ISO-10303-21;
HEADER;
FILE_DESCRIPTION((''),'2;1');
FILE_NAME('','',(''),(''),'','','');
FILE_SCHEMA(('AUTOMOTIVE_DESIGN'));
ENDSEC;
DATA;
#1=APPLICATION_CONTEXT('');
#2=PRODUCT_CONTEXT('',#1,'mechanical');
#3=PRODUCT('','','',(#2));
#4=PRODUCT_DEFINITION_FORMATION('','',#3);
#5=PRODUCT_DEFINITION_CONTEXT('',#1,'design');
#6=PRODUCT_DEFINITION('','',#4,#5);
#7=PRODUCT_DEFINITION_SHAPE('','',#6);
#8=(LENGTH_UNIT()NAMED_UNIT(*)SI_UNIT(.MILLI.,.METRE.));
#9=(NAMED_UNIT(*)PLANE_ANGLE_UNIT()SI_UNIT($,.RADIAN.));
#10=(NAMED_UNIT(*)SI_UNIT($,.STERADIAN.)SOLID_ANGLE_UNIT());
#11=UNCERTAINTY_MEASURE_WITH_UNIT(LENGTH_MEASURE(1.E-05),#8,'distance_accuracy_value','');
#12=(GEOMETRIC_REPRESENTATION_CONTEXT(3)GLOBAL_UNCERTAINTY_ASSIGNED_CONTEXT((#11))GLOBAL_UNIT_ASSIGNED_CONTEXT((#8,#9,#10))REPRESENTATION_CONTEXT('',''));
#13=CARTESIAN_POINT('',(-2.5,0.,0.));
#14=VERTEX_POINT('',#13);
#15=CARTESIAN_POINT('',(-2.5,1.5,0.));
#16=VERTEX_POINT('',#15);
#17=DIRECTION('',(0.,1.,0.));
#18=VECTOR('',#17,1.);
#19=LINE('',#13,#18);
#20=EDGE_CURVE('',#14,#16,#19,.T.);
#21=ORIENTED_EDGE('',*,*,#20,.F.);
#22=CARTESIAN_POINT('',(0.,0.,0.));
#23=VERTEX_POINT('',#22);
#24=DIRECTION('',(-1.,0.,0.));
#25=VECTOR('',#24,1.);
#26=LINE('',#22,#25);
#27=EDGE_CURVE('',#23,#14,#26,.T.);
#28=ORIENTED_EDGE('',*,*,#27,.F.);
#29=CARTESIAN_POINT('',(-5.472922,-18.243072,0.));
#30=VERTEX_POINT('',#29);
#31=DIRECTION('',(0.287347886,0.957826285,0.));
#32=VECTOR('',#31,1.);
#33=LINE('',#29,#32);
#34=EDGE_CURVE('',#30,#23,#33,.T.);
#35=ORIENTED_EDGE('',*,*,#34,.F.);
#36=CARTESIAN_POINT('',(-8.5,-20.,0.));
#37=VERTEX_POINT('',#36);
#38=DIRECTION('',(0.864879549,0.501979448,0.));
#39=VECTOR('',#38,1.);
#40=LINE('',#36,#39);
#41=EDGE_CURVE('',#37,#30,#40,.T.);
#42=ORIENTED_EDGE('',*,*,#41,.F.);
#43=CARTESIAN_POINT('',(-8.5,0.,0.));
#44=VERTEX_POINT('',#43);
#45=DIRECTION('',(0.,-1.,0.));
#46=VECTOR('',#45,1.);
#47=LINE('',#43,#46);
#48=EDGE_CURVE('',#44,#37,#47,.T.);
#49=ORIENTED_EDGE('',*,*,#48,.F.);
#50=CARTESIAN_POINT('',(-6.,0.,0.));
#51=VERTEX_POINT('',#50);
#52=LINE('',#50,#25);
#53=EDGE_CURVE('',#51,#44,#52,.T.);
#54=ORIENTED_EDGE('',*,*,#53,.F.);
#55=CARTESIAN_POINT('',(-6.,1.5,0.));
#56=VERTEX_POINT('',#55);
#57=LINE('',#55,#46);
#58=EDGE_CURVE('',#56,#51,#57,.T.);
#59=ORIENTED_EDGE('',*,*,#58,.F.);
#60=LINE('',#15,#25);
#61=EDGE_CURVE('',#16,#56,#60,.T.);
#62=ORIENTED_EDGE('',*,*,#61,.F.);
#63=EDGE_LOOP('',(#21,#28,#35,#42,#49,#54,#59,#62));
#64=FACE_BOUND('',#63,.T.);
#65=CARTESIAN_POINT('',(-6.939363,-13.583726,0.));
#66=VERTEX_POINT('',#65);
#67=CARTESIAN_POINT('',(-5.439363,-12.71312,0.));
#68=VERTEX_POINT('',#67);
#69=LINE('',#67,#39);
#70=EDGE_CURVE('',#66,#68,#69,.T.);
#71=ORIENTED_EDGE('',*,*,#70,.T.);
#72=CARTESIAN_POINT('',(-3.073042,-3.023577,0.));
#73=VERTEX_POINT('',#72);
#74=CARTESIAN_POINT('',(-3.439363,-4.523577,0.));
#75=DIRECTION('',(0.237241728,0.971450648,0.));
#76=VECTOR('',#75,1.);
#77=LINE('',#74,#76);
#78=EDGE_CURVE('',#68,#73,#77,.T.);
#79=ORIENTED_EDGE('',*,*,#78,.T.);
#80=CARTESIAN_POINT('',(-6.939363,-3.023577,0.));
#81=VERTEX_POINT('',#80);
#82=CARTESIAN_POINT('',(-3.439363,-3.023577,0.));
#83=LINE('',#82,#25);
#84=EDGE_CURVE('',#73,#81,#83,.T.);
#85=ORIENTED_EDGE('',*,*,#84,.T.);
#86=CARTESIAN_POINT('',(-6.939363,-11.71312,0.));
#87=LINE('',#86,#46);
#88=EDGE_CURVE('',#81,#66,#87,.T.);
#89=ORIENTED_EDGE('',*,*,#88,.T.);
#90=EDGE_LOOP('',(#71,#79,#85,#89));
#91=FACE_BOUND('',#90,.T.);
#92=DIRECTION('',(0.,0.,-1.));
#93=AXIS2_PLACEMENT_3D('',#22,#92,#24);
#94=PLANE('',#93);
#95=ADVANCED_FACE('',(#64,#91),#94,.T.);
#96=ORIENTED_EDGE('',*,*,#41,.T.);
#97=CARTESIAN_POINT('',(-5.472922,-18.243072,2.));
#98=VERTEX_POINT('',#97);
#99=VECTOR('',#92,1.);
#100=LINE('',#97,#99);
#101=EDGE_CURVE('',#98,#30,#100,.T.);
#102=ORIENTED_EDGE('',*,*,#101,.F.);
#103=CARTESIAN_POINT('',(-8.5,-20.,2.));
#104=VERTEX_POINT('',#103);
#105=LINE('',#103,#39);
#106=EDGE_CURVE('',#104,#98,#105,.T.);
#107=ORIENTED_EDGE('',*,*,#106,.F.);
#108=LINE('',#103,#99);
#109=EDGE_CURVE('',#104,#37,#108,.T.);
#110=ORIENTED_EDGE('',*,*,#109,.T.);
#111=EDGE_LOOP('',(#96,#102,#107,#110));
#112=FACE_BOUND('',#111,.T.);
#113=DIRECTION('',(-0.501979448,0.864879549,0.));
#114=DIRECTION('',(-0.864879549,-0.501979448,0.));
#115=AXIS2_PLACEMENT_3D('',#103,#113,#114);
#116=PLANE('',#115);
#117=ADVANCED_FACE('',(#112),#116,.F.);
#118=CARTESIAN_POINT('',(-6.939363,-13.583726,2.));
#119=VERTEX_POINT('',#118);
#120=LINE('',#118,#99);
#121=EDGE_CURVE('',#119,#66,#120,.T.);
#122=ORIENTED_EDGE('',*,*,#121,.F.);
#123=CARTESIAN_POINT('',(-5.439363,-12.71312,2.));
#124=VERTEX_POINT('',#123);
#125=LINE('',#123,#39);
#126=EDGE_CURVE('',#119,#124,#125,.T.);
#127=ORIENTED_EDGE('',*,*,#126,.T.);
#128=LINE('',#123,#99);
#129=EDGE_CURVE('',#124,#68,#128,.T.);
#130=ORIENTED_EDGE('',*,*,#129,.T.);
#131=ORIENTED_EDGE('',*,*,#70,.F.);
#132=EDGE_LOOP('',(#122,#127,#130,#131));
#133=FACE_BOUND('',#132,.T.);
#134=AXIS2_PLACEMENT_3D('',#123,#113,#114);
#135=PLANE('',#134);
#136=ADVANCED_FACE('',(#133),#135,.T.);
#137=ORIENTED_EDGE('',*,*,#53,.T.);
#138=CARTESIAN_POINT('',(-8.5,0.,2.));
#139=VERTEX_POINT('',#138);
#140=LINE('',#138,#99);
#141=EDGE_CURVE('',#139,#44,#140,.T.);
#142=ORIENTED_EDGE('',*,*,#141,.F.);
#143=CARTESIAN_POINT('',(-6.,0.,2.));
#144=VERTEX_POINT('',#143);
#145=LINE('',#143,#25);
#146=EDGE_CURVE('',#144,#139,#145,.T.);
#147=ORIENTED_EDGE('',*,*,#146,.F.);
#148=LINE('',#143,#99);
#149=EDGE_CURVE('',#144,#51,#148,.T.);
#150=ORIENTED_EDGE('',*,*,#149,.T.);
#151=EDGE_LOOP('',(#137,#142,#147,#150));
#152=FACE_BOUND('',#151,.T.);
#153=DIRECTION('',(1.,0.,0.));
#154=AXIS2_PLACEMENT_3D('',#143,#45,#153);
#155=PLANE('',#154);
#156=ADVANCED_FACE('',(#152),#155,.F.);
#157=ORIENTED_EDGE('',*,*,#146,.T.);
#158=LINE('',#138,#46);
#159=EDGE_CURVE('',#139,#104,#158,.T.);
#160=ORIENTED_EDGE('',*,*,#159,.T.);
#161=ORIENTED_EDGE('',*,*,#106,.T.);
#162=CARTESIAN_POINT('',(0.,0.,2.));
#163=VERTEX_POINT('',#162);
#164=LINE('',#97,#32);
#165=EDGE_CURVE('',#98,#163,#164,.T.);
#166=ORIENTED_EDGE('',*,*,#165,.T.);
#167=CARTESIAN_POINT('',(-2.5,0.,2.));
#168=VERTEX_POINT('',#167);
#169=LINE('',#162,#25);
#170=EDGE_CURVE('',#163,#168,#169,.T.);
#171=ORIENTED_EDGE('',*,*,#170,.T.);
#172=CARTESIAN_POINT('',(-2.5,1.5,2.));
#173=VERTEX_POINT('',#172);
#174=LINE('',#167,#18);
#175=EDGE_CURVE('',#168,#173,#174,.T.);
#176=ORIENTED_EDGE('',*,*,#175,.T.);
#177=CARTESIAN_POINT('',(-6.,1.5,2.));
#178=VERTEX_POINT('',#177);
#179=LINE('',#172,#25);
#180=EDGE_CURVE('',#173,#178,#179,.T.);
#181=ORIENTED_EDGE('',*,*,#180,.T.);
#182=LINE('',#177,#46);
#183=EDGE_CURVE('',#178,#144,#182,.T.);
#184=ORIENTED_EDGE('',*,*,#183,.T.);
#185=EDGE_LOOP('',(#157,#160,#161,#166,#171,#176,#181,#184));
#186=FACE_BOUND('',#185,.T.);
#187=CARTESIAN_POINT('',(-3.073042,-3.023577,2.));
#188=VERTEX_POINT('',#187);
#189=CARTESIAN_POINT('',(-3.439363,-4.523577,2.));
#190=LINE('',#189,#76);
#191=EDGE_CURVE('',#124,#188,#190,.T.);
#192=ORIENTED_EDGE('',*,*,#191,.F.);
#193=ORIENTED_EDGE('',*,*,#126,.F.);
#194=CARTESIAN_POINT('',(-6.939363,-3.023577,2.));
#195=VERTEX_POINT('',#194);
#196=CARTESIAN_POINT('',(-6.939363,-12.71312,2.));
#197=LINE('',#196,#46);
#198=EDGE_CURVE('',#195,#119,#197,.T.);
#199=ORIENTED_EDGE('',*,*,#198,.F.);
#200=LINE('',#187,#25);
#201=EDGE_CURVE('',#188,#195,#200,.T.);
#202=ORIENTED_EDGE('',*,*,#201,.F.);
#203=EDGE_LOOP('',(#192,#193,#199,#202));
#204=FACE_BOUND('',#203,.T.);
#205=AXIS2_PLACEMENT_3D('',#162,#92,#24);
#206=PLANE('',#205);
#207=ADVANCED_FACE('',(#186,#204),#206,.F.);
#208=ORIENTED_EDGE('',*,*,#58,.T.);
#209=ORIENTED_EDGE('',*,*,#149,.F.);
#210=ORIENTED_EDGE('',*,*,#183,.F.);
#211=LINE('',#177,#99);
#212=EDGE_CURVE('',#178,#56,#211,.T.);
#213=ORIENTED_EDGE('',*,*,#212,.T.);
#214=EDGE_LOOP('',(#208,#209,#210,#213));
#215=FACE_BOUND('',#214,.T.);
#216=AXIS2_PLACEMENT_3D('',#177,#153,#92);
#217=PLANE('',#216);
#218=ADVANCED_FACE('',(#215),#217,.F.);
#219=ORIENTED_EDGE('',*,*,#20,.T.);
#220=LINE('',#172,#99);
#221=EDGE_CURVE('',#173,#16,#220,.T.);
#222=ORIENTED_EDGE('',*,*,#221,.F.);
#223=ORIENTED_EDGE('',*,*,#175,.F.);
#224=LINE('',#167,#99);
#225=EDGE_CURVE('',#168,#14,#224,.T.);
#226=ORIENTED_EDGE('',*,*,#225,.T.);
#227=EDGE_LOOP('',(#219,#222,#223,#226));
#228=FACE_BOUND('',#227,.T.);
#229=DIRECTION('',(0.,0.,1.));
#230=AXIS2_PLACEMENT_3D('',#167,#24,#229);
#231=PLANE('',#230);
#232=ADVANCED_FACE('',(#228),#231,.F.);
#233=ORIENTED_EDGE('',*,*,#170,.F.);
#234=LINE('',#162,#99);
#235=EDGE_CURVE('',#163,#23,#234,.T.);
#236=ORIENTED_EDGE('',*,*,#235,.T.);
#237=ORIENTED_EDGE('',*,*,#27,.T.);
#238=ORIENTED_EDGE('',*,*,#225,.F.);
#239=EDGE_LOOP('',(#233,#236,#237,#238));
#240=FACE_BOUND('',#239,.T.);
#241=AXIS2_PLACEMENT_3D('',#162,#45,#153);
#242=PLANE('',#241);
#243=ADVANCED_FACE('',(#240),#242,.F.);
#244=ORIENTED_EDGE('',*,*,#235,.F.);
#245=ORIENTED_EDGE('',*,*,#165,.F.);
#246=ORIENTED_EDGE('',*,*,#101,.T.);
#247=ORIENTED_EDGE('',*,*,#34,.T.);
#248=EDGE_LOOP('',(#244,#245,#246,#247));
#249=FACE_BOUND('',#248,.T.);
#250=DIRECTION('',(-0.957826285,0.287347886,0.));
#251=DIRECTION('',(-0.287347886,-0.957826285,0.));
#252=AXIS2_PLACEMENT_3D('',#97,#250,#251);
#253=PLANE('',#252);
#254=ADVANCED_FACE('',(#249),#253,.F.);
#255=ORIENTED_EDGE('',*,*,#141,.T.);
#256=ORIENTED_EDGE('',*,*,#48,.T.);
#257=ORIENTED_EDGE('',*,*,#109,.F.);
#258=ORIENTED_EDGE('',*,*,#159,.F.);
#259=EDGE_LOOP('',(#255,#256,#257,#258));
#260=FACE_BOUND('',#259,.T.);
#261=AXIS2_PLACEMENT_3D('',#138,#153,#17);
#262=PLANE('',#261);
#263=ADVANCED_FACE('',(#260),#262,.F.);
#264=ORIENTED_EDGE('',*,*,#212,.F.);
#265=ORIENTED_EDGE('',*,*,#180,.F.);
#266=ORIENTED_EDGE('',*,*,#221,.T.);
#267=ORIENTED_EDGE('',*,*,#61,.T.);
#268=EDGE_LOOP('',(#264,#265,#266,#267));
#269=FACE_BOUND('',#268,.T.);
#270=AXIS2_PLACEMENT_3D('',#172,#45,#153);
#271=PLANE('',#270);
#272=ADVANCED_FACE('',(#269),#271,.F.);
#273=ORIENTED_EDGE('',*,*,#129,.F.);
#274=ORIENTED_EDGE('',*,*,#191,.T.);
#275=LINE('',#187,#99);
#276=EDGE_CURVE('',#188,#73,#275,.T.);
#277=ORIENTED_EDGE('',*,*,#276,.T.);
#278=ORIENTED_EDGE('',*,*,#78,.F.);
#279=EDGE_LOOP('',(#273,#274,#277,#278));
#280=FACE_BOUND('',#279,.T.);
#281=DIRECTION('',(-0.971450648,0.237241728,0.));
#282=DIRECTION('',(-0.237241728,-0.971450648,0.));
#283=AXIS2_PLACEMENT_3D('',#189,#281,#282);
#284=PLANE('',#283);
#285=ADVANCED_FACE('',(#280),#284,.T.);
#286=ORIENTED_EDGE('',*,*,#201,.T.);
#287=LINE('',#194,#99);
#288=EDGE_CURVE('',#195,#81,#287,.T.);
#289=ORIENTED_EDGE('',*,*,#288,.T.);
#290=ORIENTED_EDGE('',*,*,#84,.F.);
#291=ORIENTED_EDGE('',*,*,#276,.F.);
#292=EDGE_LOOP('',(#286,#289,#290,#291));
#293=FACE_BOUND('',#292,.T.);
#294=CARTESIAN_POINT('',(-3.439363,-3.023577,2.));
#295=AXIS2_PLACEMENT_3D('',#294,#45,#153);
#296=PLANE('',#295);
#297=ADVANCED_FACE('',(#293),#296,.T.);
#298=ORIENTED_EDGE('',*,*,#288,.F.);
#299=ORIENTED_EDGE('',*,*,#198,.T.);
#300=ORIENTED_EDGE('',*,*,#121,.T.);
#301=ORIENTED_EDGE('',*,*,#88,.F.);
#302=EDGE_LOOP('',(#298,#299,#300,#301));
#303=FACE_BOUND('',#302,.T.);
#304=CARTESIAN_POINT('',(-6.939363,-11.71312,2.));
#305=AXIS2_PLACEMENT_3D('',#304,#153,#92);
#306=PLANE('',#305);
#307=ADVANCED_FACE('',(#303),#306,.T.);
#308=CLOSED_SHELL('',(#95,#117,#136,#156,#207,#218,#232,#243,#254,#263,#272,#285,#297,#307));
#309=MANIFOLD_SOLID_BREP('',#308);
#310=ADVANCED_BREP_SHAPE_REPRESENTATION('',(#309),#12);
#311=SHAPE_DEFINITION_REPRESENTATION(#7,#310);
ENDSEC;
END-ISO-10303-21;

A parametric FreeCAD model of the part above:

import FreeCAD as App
import Part
import Sketcher

V = App.Vector
Q = App.Units.Quantity

doc = App.newDocument("Part")
body = doc.addObject("PartDesign::Body", "Body")

sketch1 = body.newObject("Sketcher::SketchObject", "Sketch")
sketch1.AttachmentSupport = (doc.getObject("XY_Plane"), [""])
sketch1.MapMode = "FlatFace"
sketch1.addGeometry(Part.LineSegment(V(-8.5, 0, 0), V(-8.5, -20, 0)), False)
sketch1.addGeometry(Part.LineSegment(V(-8.5, -20, 0), V(-5.5, -18.2, 0)), False)
sketch1.addGeometry(Part.LineSegment(V(-5.5, -18.2, 0), V(0, 0, 0)), False)
sketch1.addGeometry(Part.LineSegment(V(0, 0, 0), V(-2.5, 0, 0)), False)
sketch1.addGeometry(Part.LineSegment(V(-2.5, 0, 0), V(-2.5, 1.5, 0)), False)
sketch1.addGeometry(Part.LineSegment(V(-2.5, 1.5, 0), V(-6, 1.5, 0)), False)
sketch1.addGeometry(Part.LineSegment(V(-6, 1.5, 0), V(-6, 0, 0)), False)
sketch1.addGeometry(Part.LineSegment(V(-6, 0, 0), V(-8.5, 0, 0)), False)
sketch1.addGeometry(Part.LineSegment(V(-3.1, -3, 0), V(-3.4, -4.5, 0)), False)
sketch1.addGeometry(Part.LineSegment(V(-3.4, -4.5, 0), V(-5.4, -12.7, 0)), False)
sketch1.addGeometry(Part.LineSegment(V(-5.4, -12.7, 0), V(-6.9, -13.6, 0)), False)
sketch1.addGeometry(Part.LineSegment(V(-6.9, -13.6, 0), V(-6.9, -3, 0)), False)
sketch1.addGeometry(Part.LineSegment(V(-6.9, -3, 0), V(-3.1, -3, 0)), False)
sketch1.addConstraint(Sketcher.Constraint("Coincident", 0, 2, 1, 1))
sketch1.addConstraint(Sketcher.Constraint("Coincident", 1, 2, 2, 1))
sketch1.addConstraint(Sketcher.Constraint("Coincident", 2, 2, 3, 1))
sketch1.addConstraint(Sketcher.Constraint("Coincident", 3, 2, 4, 1))
sketch1.addConstraint(Sketcher.Constraint("Coincident", 4, 2, 5, 1))
sketch1.addConstraint(Sketcher.Constraint("Coincident", 5, 2, 6, 1))
sketch1.addConstraint(Sketcher.Constraint("Coincident", 6, 2, 7, 1))
sketch1.addConstraint(Sketcher.Constraint("Coincident", 7, 2, 0, 1))
sketch1.addConstraint(Sketcher.Constraint("Coincident", 8, 2, 9, 1))
sketch1.addConstraint(Sketcher.Constraint("Coincident", 9, 2, 10, 1))
sketch1.addConstraint(Sketcher.Constraint("Coincident", 10, 2, 11, 1))
sketch1.addConstraint(Sketcher.Constraint("Coincident", 11, 2, 12, 1))
sketch1.addConstraint(Sketcher.Constraint("Coincident", 12, 2, 8, 1))
sketch1.addConstraint(Sketcher.Constraint("Vertical", 0))
sketch1.addConstraint(Sketcher.Constraint("Horizontal", 3))
sketch1.addConstraint(Sketcher.Constraint("Vertical", 4))
sketch1.addConstraint(Sketcher.Constraint("Horizontal", 5))
sketch1.addConstraint(Sketcher.Constraint("Vertical", 6))
sketch1.addConstraint(Sketcher.Constraint("Horizontal", 7))
sketch1.addConstraint(Sketcher.Constraint("Vertical", 11))
sketch1.addConstraint(Sketcher.Constraint("Horizontal", 12))
sketch1.addConstraint(Sketcher.Constraint("Coincident", 2, 2, -1, 1))
sketch1.addConstraint(Sketcher.Constraint("PointOnObject", 6, 2, -1))
sketch1.addConstraint(Sketcher.Constraint("Parallel", 8, 9))
sketch1.addConstraint(Sketcher.Constraint("Parallel", 1, 10))
sketch1.addConstraint(Sketcher.Constraint("Equal", 3, 7))
sketch1.addConstraint(Sketcher.Constraint("DistanceY", 0, 2, 0, 1, Q("20 mm")))
sketch1.addConstraint(Sketcher.Constraint("DistanceX", 3, 2, 3, 1, Q("2.5 mm")))
sketch1.addConstraint(Sketcher.Constraint("DistanceX", 5, 2, 5, 1, Q("3.5 mm")))
sketch1.addConstraint(Sketcher.Constraint("DistanceY", 4, 1, 4, 2, Q("1.5 mm")))
sketch1.addConstraint(Sketcher.Constraint("DistanceX", 9, 2, 8, 2, Q("2 mm")))
sketch1.addConstraint(Sketcher.Constraint("Distance", 1, Q("3.5 mm")))
sketch1.addConstraint(Sketcher.Constraint("DistanceX", 10, 2, 9, 2, Q("1.5 mm")))
sketch1.addConstraint(Sketcher.Constraint("DistanceY", 8, 2, 11, 2, Q("1.5 mm")))
sketch1.addConstraint(Sketcher.Constraint("DistanceX", 12, 1, 12, 2, Q("3.866321 mm")))
sketch1.addConstraint(Sketcher.Constraint("DistanceY", 11, 1, 11, 2, Q("10.560149 mm")))
sketch1.addConstraint(Sketcher.Constraint("DistanceY", 9, 2, -1, 1, Q("12.71312 mm")))
sketch1.addConstraint(Sketcher.Constraint("DistanceX", 12, 2, -1, 1, Q("3.073042 mm")))
pad1 = body.newObject("PartDesign::Pad", "Pad")
pad1.Profile = sketch1
pad1.Length = 2

doc.recompute()
